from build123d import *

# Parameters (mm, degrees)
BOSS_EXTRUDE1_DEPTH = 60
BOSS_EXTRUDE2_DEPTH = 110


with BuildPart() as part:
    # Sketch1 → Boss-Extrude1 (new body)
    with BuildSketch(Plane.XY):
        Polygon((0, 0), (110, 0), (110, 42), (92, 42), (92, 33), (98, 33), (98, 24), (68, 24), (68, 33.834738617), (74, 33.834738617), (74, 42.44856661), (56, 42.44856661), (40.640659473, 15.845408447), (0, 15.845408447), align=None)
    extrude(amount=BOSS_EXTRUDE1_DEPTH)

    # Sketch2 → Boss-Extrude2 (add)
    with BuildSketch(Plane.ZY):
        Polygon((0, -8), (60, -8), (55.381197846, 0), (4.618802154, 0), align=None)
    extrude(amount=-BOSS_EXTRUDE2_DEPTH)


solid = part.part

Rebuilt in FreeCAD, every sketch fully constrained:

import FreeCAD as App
import Part
import Sketcher

V = App.Vector
Q = App.Units.Quantity

doc = App.newDocument("Part")
body = doc.addObject("PartDesign::Body", "Body")

sketch1 = body.newObject("Sketcher::SketchObject", "Sketch")
sketch1.AttachmentSupport = (doc.getObject("XY_Plane"), [""])
sketch1.MapMode = "FlatFace"
sketch1.addGeometry(Part.LineSegment(V(0, 0, 0), V(110, 0, 0)), False)
sketch1.addGeometry(Part.LineSegment(V(110, 0, 0), V(110, 42, 0)), False)
sketch1.addGeometry(Part.LineSegment(V(110, 42, 0), V(92, 42, 0)), False)
sketch1.addGeometry(Part.LineSegment(V(92, 42, 0), V(92, 33, 0)), False)
sketch1.addGeometry(Part.LineSegment(V(92, 33, 0), V(98, 33, 0)), False)
sketch1.addGeometry(Part.LineSegment(V(98, 33, 0), V(98, 24, 0)), False)
sketch1.addGeometry(Part.LineSegment(V(98, 24, 0), V(68, 24, 0)), False)
sketch1.addGeometry(Part.LineSegment(V(68, 24, 0), V(68, 34, 0)), False)
sketch1.addGeometry(Part.LineSegment(V(68, 34, 0), V(74, 34, 0)), False)
sketch1.addGeometry(Part.LineSegment(V(74, 34, 0), V(74, 42, 0)), False)
sketch1.addGeometry(Part.LineSegment(V(74, 42, 0), V(56, 42, 0)), False)
sketch1.addGeometry(Part.LineSegment(V(56, 42, 0), V(41, 16, 0)), False)
sketch1.addGeometry(Part.LineSegment(V(41, 16, 0), V(0, 16, 0)), False)
sketch1.addGeometry(Part.LineSegment(V(0, 16, 0), V(0, 0, 0)), False)
sketch1.addConstraint(Sketcher.Constraint("Coincident", 0, 2, 1, 1))
sketch1.addConstraint(Sketcher.Constraint("Coincident", 1, 2, 2, 1))
sketch1.addConstraint(Sketcher.Constraint("Coincident", 2, 2, 3, 1))
sketch1.addConstraint(Sketcher.Constraint("Coincident", 3, 2, 4, 1))
sketch1.addConstraint(Sketcher.Constraint("Coincident", 4, 2, 5, 1))
sketch1.addConstraint(Sketcher.Constraint("Coincident", 5, 2, 6, 1))
sketch1.addConstraint(Sketcher.Constraint("Coincident", 6, 2, 7, 1))
sketch1.addConstraint(Sketcher.Constraint("Coincident", 7, 2, 8, 1))
sketch1.addConstraint(Sketcher.Constraint("Coincident", 8, 2, 9, 1))
sketch1.addConstraint(Sketcher.Constraint("Coincident", 9, 2, 10, 1))
sketch1.addConstraint(Sketcher.Constraint("Coincident", 10, 2, 11, 1))
sketch1.addConstraint(Sketcher.Constraint("Coincident", 11, 2, 12, 1))
sketch1.addConstraint(Sketcher.Constraint("Coincident", 12, 2, 13, 1))
sketch1.addConstraint(Sketcher.Constraint("Coincident", 13, 2, 0, 1))
sketch1.addConstraint(Sketcher.Constraint("Horizontal", 0))
sketch1.addConstraint(Sketcher.Constraint("Vertical", 1))
sketch1.addConstraint(Sketcher.Constraint("Horizontal", 2))
sketch1.addConstraint(Sketcher.Constraint("Vertical", 3))
sketch1.addConstraint(Sketcher.Constraint("Horizontal", 4))
sketch1.addConstraint(Sketcher.Constraint("Vertical", 5))
sketch1.addConstraint(Sketcher.Constraint("Horizontal", 6))
sketch1.addConstraint(Sketcher.Constraint("Vertical", 7))
sketch1.addConstraint(Sketcher.Constraint("Horizontal", 8))
sketch1.addConstraint(Sketcher.Constraint("Vertical", 9))
sketch1.addConstraint(Sketcher.Constraint("Horizontal", 10))
sketch1.addConstraint(Sketcher.Constraint("Horizontal", 12))
sketch1.addConstraint(Sketcher.Constraint("Vertical", 13))
sketch1.addConstraint(Sketcher.Constraint("Coincident", 13, 2, -1, 1))
sketch1.addConstraint(Sketcher.Constraint("Equal", 4, 8))
sketch1.addConstraint(Sketcher.Constraint("Equal", 2, 10))
sketch1.addConstraint(Sketcher.Constraint("Equal", 3, 5))
sketch1.addConstraint(Sketcher.Constraint("DistanceX", 0, 1, 0, 2, 110.0))
sketch1.addConstraint(Sketcher.Constraint("DistanceX", 2, 2, 2, 1, 18.0))
sketch1.addConstraint(Sketcher.Constraint("DistanceX", 4, 1, 4, 2, 6.0))
sketch1.addConstraint(Sketcher.Constraint("DistanceX", 6, 2, 6, 1, 30.0))
sketch1.addConstraint(Sketcher.Constraint("DistanceY", 1, 1, 1, 2, 42.0))
sketch1.addConstraint(Sketcher.Constraint("DistanceY", 3, 2, 3, 1, 9.0))
sketch1.addConstraint(Sketcher.Constraint("Angle", 11, Q("-120 deg")))
sketch1.addConstraint(Sketcher.Constraint("DistanceX", 12, 2, 12, 1, 40.640659))
sketch1.addConstraint(Sketcher.Constraint("DistanceY", 7, 1, 7, 2, 9.834739))
sketch1.addConstraint(Sketcher.Constraint("DistanceY", 13, 2, 13, 1, 15.845408))
pad1 = body.newObject("PartDesign::Pad", "Pad")
pad1.Profile = sketch1
pad1.Length = 60

sketch2 = body.newObject("Sketcher::SketchObject", "Sketch001")
sketch2.AttachmentSupport = (doc.getObject("YZ_Plane"), [""])
sketch2.MapMode = "FlatFace"
sketch2.addGeometry(Part.LineSegment(V(-8, 0, 0), V(-8, 60, 0)), False)
sketch2.addGeometry(Part.LineSegment(V(-8, 60, 0), V(0, 55, 0)), False)
sketch2.addGeometry(Part.LineSegment(V(0, 55, 0), V(0, 5, 0)), False)
sketch2.addGeometry(Part.LineSegment(V(0, 5, 0), V(-8, 0, 0)), False)
sketch2.addConstraint(Sketcher.Constraint("Coincident", 0, 2, 1, 1))
sketch2.addConstraint(Sketcher.Constraint("Coincident", 1, 2, 2, 1))
sketch2.addConstraint(Sketcher.Constraint("Coincident", 2, 2, 3, 1))
sketch2.addConstraint(Sketcher.Constraint("Coincident", 3, 2, 0, 1))
sketch2.addConstraint(Sketcher.Constraint("Vertical", 0))
sketch2.addConstraint(Sketcher.Constraint("Vertical", 2))
sketch2.addConstraint(Sketcher.Constraint("PointOnObject", 1, 2, -2))
sketch2.addConstraint(Sketcher.Constraint("PointOnObject", 3, 2, -1))
sketch2.addConstraint(Sketcher.Constraint("Equal", 1, 3))
sketch2.addConstraint(Sketcher.Constraint("DistanceY", 0, 1, 0, 2, 60.0))
sketch2.addConstraint(Sketcher.Constraint("Angle", 1, Q("-30 deg")))
sketch2.addConstraint(Sketcher.Constraint("DistanceX", 0, 2, -1, 1, 8.0))
pad2 = body.newObject("PartDesign::Pad", "Pad001")
pad2.Profile = sketch2
pad2.Length = 110

doc.recompute()
